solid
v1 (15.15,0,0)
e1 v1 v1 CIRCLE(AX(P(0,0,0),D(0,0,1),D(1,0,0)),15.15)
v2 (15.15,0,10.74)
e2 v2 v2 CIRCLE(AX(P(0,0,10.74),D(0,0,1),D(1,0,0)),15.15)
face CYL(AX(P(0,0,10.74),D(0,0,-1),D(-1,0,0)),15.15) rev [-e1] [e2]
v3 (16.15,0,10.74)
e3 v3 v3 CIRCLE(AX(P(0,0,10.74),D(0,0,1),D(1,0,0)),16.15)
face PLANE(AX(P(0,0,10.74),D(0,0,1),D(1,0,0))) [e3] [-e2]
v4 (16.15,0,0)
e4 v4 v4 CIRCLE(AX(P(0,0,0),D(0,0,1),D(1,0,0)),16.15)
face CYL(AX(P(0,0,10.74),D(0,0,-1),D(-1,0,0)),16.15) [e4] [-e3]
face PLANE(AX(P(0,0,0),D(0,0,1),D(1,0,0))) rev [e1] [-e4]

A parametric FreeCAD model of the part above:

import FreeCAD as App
import Part
import Sketcher
Q = App.Units.Quantity

doc = App.newDocument("Part")
body = doc.addObject("PartDesign::Body", "Body")

# Sketch on XY plane
sketch1 = body.newObject("Sketcher::SketchObject", "Sketch")
sketch1.AttachmentSupport = (doc.getObject("XY_Plane"), [""])
sketch1.MapMode = "FlatFace"
sketch1.addGeometry(Part.Circle(App.Vector(0, 0, 0), App.Vector(0, 0, 1), 16), False)
sketch1.addGeometry(Part.Circle(App.Vector(0, 0, 0), App.Vector(0, 0, 1), 15), False)
sketch1.addConstraint(Sketcher.Constraint("Coincident", 0, 3, -1, 1))
sketch1.addConstraint(Sketcher.Constraint("Coincident", 1, 3, -1, 1))
sketch1.addConstraint(Sketcher.Constraint("Diameter", 0, Q("32.3 mm")))
sketch1.addConstraint(Sketcher.Constraint("Diameter", 1, Q("30.3 mm")))
pad1 = body.newObject("PartDesign::Pad", "Pad")
pad1.Profile = sketch1
pad1.Length = 10.74

doc.recompute()
